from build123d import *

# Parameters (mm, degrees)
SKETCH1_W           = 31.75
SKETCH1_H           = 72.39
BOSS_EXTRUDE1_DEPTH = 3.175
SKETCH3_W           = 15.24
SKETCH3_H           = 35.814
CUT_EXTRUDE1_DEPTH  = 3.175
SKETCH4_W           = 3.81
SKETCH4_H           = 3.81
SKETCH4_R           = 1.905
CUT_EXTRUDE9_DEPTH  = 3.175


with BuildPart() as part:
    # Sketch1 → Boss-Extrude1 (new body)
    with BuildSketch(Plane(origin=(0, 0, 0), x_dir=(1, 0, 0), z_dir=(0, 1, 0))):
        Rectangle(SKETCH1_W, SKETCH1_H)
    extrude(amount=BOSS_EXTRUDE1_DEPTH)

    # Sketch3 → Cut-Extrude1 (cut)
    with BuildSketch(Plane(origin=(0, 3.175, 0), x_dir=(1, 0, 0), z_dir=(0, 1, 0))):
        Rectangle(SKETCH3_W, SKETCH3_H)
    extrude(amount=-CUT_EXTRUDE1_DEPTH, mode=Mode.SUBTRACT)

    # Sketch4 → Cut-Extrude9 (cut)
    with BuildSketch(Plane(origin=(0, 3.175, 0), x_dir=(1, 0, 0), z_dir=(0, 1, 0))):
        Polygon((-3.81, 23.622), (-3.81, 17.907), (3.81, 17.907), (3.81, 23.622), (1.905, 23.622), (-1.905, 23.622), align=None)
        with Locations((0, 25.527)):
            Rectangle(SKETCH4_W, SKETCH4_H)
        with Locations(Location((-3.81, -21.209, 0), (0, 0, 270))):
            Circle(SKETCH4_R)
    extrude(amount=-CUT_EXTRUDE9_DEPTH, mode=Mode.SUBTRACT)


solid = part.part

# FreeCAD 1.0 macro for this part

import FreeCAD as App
import Part
import Sketcher
from FreeCAD import Vector
Q = App.Units.Quantity

doc = App.newDocument("Part")
body = doc.addObject("PartDesign::Body", "Body")

# Sketch on XZ plane
sketch1 = body.newObject("Sketcher::SketchObject", "Sketch")
sketch1.AttachmentSupport = (doc.getObject("XZ_Plane"), [""])
sketch1.MapMode = "FlatFace"
sketch1.addGeometry(Part.LineSegment(Vector(-16, -36, 0), Vector(-16, 36, 0)), False)
sketch1.addGeometry(Part.LineSegment(Vector(-16, 36, 0), Vector(16, 36, 0)), False)
sketch1.addGeometry(Part.LineSegment(Vector(16, 36, 0), Vector(16, -36, 0)), False)
sketch1.addGeometry(Part.LineSegment(Vector(16, -36, 0), Vector(-16, -36, 0)), False)
sketch1.addConstraint(Sketcher.Constraint("Coincident", 0, 2, 1, 1))
sketch1.addConstraint(Sketcher.Constraint("Coincident", 1, 2, 2, 1))
sketch1.addConstraint(Sketcher.Constraint("Coincident", 2, 2, 3, 1))
sketch1.addConstraint(Sketcher.Constraint("Coincident", 3, 2, 0, 1))
sketch1.addConstraint(Sketcher.Constraint("Vertical", 0))
sketch1.addConstraint(Sketcher.Constraint("Horizontal", 1))
sketch1.addConstraint(Sketcher.Constraint("Vertical", 2))
sketch1.addConstraint(Sketcher.Constraint("Horizontal", 3))
sketch1.addConstraint(Sketcher.Constraint("Symmetric", 0, 2, 2, 2, -1, 1))
sketch1.addConstraint(Sketcher.Constraint("DistanceX", 1, 1, 1, 2, Q("1.25 in")))
sketch1.addConstraint(Sketcher.Constraint("DistanceY", 0, 1, 0, 2, Q("2.85 in")))
pad1 = body.newObject("PartDesign::Pad", "Pad")
pad1.Profile = sketch1
pad1.Length = Q("0.125 in")
pad1.Reversed = True

# Sketch on XZ plane
sketch2 = body.newObject("Sketcher::SketchObject", "Sketch001")
sketch2.AttachmentSupport = (doc.getObject("XZ_Plane"), [""])
sketch2.MapMode = "FlatFace"
sketch2.AttachmentOffset = App.Placement(Vector(0, 0, -0.125 * 25.4), App.Rotation())
sketch2.addGeometry(Part.LineSegment(Vector(-8, -18, 0), Vector(-8, 18, 0)), False)
sketch2.addGeometry(Part.LineSegment(Vector(-8, 18, 0), Vector(8, 18, 0)), False)
sketch2.addGeometry(Part.LineSegment(Vector(8, 18, 0), Vector(8, -18, 0)), False)
sketch2.addGeometry(Part.LineSegment(Vector(8, -18, 0), Vector(-8, -18, 0)), False)
sketch2.addConstraint(Sketcher.Constraint("Coincident", 0, 2, 1, 1))
sketch2.addConstraint(Sketcher.Constraint("Coincident", 1, 2, 2, 1))
sketch2.addConstraint(Sketcher.Constraint("Coincident", 2, 2, 3, 1))
sketch2.addConstraint(Sketcher.Constraint("Coincident", 3, 2, 0, 1))
sketch2.addConstraint(Sketcher.Constraint("Vertical", 0))
sketch2.addConstraint(Sketcher.Constraint("Horizontal", 1))
sketch2.addConstraint(Sketcher.Constraint("Vertical", 2))
sketch2.addConstraint(Sketcher.Constraint("Horizontal", 3))
sketch2.addConstraint(Sketcher.Constraint("Symmetric", 0, 2, 2, 2, -1, 1))
sketch2.addConstraint(Sketcher.Constraint("DistanceX", 1, 1, 1, 2, Q("0.6 in")))
sketch2.addConstraint(Sketcher.Constraint("DistanceY", 0, 1, 0, 2, Q("1.41 in")))
pocket1 = body.newObject("PartDesign::Pocket", "Pocket")
pocket1.Profile = sketch2
pocket1.Length = Q("0.125 in")
pocket1.Reversed = True

# Sketch on XZ plane
sketch3 = body.newObject("Sketcher::SketchObject", "Sketch002")
sketch3.AttachmentSupport = (doc.getObject("XZ_Plane"), [""])
sketch3.MapMode = "FlatFace"
sketch3.AttachmentOffset = App.Placement(Vector(0, 0, -0.125 * 25.4), App.Rotation())
sketch3.addGeometry(Part.LineSegment(Vector(-3.8, -23.6, 0), Vector(-3.8, -17.9, 0)), False)
sketch3.addGeometry(Part.LineSegment(Vector(-3.8, -17.9, 0), Vector(3.8, -17.9, 0)), False)
sketch3.addGeometry(Part.LineSegment(Vector(3.8, -17.9, 0), Vector(3.8, -23.6, 0)), False)
sketch3.addGeometry(Part.LineSegment(Vector(3.8, -23.6, 0), Vector(1.9, -23.6, 0)), False)
sketch3.addGeometry(Part.LineSegment(Vector(1.9, -23.6, 0), Vector(1.9, -27.4, 0)), False)
sketch3.addGeometry(Part.LineSegment(Vector(1.9, -27.4, 0), Vector(-1.9, -27.4, 0)), False)
sketch3.addGeometry(Part.LineSegment(Vector(-1.9, -27.4, 0), Vector(-1.9, -23.6, 0)), False)
sketch3.addGeometry(Part.LineSegment(Vector(-1.9, -23.6, 0), Vector(-3.8, -23.6, 0)), False)
sketch3.addGeometry(Part.Circle(Vector(-3.8, 21.2, 0), Vector(0, 0, 1), 1.9), False)
sketch3.addConstraint(Sketcher.Constraint("Coincident", 0, 2, 1, 1))
sketch3.addConstraint(Sketcher.Constraint("Coincident", 1, 2, 2, 1))
sketch3.addConstraint(Sketcher.Constraint("Coincident", 2, 2, 3, 1))
sketch3.addConstraint(Sketcher.Constraint("Coincident", 3, 2, 4, 1))
sketch3.addConstraint(Sketcher.Constraint("Coincident", 4, 2, 5, 1))
sketch3.addConstraint(Sketcher.Constraint("Coincident", 5, 2, 6, 1))
sketch3.addConstraint(Sketcher.Constraint("Coincident", 6, 2, 7, 1))
sketch3.addConstraint(Sketcher.Constraint("Coincident", 7, 2, 0, 1))
sketch3.addConstraint(Sketcher.Constraint("Vertical", 0))
sketch3.addConstraint(Sketcher.Constraint("Horizontal", 1))
sketch3.addConstraint(Sketcher.Constraint("Vertical", 2))
sketch3.addConstraint(Sketcher.Constraint("Horizontal", 3))
sketch3.addConstraint(Sketcher.Constraint("Vertical", 4))
sketch3.addConstraint(Sketcher.Constraint("Horizontal", 5))
sketch3.addConstraint(Sketcher.Constraint("Vertical", 6))
sketch3.addConstraint(Sketcher.Constraint("Horizontal", 7))
sketch3.addConstraint(Sketcher.Constraint("Symmetric", 3, 2, 6, 2, -2))
sketch3.addConstraint(Sketcher.Constraint("Vertical", 8, 3, 0, 2))
sketch3.addConstraint(Sketcher.Constraint("Equal", 3, 7))
sketch3.addConstraint(Sketcher.Constraint("Equal", 5, 4))
sketch3.addConstraint(Sketcher.Constraint("Diameter", 8, Q("0.15 in")))
sketch3.addConstraint(Sketcher.Constraint("DistanceX", 1, 1, 1, 2, Q("0.3 in")))
sketch3.addConstraint(Sketcher.Constraint("DistanceX", 5, 2, 5, 1, Q("0.15 in")))
sketch3.addConstraint(Sketcher.Constraint("DistanceY", 0, 1, 0, 2, Q("0.225 in")))
sketch3.addConstraint(Sketcher.Constraint("DistanceY", 2, 2, -1, 1, Q("0.93 in")))
sketch3.addConstraint(Sketcher.Constraint("DistanceY", 0, 2, 8, 3, Q("1.54 in")))
pocket2 = body.newObject("PartDesign::Pocket", "Pocket001")
pocket2.Profile = sketch3
pocket2.Length = Q("0.125 in")
pocket2.Reversed = True

doc.recompute()
